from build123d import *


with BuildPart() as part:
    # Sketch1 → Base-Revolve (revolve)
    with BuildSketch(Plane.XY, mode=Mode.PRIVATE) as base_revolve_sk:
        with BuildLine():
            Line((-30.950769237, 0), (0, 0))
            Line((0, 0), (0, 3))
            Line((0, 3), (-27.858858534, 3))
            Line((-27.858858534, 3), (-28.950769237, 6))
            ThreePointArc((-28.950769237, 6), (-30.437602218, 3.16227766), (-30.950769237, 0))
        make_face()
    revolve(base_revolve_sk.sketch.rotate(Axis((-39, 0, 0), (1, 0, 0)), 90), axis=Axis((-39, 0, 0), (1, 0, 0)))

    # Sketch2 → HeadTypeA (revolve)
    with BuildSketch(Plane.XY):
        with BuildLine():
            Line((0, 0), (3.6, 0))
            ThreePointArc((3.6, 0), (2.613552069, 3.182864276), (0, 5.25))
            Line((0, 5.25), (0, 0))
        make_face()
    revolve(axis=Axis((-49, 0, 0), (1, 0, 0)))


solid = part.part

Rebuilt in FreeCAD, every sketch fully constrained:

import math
import FreeCAD as App
import Part
import Sketcher
from FreeCAD import Vector
Q = App.Units.Quantity

doc = App.newDocument("Part")
body = doc.addObject("PartDesign::Body", "Body")

# Sketch on XY plane
sketch1 = body.newObject("Sketcher::SketchObject", "Sketch")
sketch1.AttachmentSupport = (doc.getObject("XY_Plane"), [""])
sketch1.MapMode = "FlatFace"
sketch1.addGeometry([
    Part.LineSegment(Vector(-31, 0, 0), Vector(0, 0, 0)),  # 0
    Part.LineSegment(Vector(0, 0, 0), Vector(0, 3, 0)),  # 1
    Part.LineSegment(Vector(0, 3, 0), Vector(-27.9, 3, 0)),  # 2
    Part.LineSegment(Vector(-27.9, 3, 0), Vector(-29, 6, 0)),  # 3
    Part.ArcOfCircle(Part.Circle(Vector(-21, 0, 0), Vector(0, 0, 1), 10), math.radians(143), math.radians(180)),  # 4
], False)
sketch1.addConstraint([
    Sketcher.Constraint("Coincident", 0, 2, 1, 1),
    Sketcher.Constraint("Coincident", 1, 2, 2, 1),
    Sketcher.Constraint("Coincident", 2, 2, 3, 1),
    Sketcher.Constraint("Coincident", 3, 2, 4, 1),
    Sketcher.Constraint("Coincident", 4, 2, 0, 1),
    Sketcher.Constraint("Horizontal", 0),
    Sketcher.Constraint("Vertical", 1),
    Sketcher.Constraint("Horizontal", 2),
    Sketcher.Constraint("Coincident", 0, 2, -1, 1),
    Sketcher.Constraint("PointOnObject", 4, 3, -1),
    Sketcher.Constraint("Radius", 4, Q("10 mm")),
    Sketcher.Constraint("DistanceY", 1, 1, 1, 2, Q("3 mm")),
    Sketcher.Constraint("Angle", 3, Q("110 deg")),
    Sketcher.Constraint("DistanceY", -1, 1, 3, 2, Q("6 mm")),
    Sketcher.Constraint("DistanceX", 0, 1, 0, 2, Q("30.950769 mm")),
])
revolution = body.newObject("PartDesign::Revolution", "Revolution")
revolution.Profile = sketch1
revolution.ReferenceAxis = (sketch1, ["H_Axis"])
revolution.Angle = 360

# Sketch on XY plane
sketch2 = body.newObject("Sketcher::SketchObject", "Sketch001")
sketch2.AttachmentSupport = (doc.getObject("XY_Plane"), [""])
sketch2.MapMode = "FlatFace"
sketch2.addGeometry([
    Part.LineSegment(Vector(0, 0, 0), Vector(3.6, 0, 0)),
    Part.ArcOfCircle(Part.Circle(Vector(-2, 0, 0), Vector(0, 0, 1), 5.6), math.radians(0), math.radians(69)),
    Part.LineSegment(Vector(0, 5.2, 0), Vector(0, 0, 0)),
], False)
sketch2.addConstraint([
    Sketcher.Constraint("Coincident", 0, 2, 1, 1),
    Sketcher.Constraint("Coincident", 1, 2, 2, 1),
    Sketcher.Constraint("Coincident", 2, 2, 0, 1),
    Sketcher.Constraint("Horizontal", 0),
    Sketcher.Constraint("Vertical", 2),
    Sketcher.Constraint("Coincident", 2, 2, -1, 1),
    Sketcher.Constraint("PointOnObject", 1, 3, -1),
    Sketcher.Constraint("DistanceX", 0, 1, 0, 2, Q("3.6 mm")),
    Sketcher.Constraint("DistanceY", 2, 2, 2, 1, Q("5.25 mm")),
])
revolution2 = body.newObject("PartDesign::Revolution", "Revolution001")
revolution2.Profile = sketch2
revolution2.ReferenceAxis = (sketch2, ["H_Axis"])
revolution2.Angle = 360

doc.recompute()
